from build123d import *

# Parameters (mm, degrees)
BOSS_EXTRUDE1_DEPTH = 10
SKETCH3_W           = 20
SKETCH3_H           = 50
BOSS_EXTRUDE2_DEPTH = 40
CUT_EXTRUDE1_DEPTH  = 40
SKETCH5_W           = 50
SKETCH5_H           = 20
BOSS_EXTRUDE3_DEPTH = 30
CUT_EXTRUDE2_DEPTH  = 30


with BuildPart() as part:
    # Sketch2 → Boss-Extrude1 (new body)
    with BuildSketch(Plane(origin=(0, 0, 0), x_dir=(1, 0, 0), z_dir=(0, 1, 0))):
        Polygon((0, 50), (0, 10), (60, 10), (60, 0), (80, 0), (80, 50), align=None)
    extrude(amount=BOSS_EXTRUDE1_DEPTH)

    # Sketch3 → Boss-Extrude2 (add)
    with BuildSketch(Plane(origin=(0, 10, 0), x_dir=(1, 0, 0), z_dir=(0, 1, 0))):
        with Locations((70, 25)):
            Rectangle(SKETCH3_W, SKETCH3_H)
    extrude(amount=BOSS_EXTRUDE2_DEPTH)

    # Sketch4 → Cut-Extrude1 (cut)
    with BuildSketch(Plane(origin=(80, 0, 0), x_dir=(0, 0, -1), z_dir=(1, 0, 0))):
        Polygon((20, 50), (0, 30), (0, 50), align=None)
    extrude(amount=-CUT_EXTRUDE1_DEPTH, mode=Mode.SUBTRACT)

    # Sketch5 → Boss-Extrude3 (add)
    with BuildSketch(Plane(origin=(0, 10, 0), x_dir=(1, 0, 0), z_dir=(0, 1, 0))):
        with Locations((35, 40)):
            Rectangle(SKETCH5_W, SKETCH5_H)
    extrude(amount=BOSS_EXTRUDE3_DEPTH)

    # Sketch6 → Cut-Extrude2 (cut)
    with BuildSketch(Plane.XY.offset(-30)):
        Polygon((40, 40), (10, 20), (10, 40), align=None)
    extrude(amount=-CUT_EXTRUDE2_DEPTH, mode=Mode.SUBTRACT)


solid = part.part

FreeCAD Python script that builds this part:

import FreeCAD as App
import Part
import Sketcher

doc = App.newDocument("Part")
params = doc.addObject("Spreadsheet::Sheet", "Params")
for row, (alias, value) in enumerate([
    ("sketch1_width", "60 mm"),
    ("sketch1_width2", "20 mm"),
    ("sketch1_height", "40 mm"),
    ("sketch1_height2", "10 mm"),
    ("pad1_length", "10 mm"),
    ("sketch2_width", "20 mm"),
    ("sketch2_height", "50 mm"),
    ("pad2_length", "40 mm"),
    ("sketch3_width", "20 mm"),
    ("pocket1_length", "40 mm"),
    ("sketch4_width", "50 mm"),
    ("sketch4_height", "20 mm"),
    ("pad3_length", "30 mm"),
    ("sketch5_width", "30 mm"),
    ("sketch5_height", "20 mm"),
    ("pocket2_length", "30 mm"),
], start=1):
    params.set(f"A{row}", alias)
    params.set(f"B{row}", "=" + value)
    params.setAlias(f"B{row}", alias)

body = doc.addObject("PartDesign::Body", "Body")

# Sketch on XZ plane
sketch1 = body.newObject("Sketcher::SketchObject", "Sketch")
sketch1.AttachmentSupport = (doc.getObject("XZ_Plane"), [""])
sketch1.MapMode = "FlatFace"
sketch1.addGeometry(Part.LineSegment(App.Vector(0, -50, 0), App.Vector(0, -10, 0)), False)
sketch1.addGeometry(Part.LineSegment(App.Vector(0, -10, 0), App.Vector(60, -10, 0)), False)
sketch1.addGeometry(Part.LineSegment(App.Vector(60, -10, 0), App.Vector(60, 0, 0)), False)
sketch1.addGeometry(Part.LineSegment(App.Vector(60, 0, 0), App.Vector(80, 0, 0)), False)
sketch1.addGeometry(Part.LineSegment(App.Vector(80, 0, 0), App.Vector(80, -50, 0)), False)
sketch1.addGeometry(Part.LineSegment(App.Vector(80, -50, 0), App.Vector(0, -50, 0)), False)
sketch1.addConstraint(Sketcher.Constraint("Coincident", 0, 2, 1, 1))
sketch1.addConstraint(Sketcher.Constraint("Coincident", 1, 2, 2, 1))
sketch1.addConstraint(Sketcher.Constraint("Coincident", 2, 2, 3, 1))
sketch1.addConstraint(Sketcher.Constraint("Coincident", 3, 2, 4, 1))
sketch1.addConstraint(Sketcher.Constraint("Coincident", 4, 2, 5, 1))
sketch1.addConstraint(Sketcher.Constraint("Coincident", 5, 2, 0, 1))
sketch1.addConstraint(Sketcher.Constraint("Vertical", 0))
sketch1.addConstraint(Sketcher.Constraint("Horizontal", 1))
sketch1.addConstraint(Sketcher.Constraint("Vertical", 2))
sketch1.addConstraint(Sketcher.Constraint("Horizontal", 3))
sketch1.addConstraint(Sketcher.Constraint("Vertical", 4))
sketch1.addConstraint(Sketcher.Constraint("Horizontal", 5))
sketch1.addConstraint(Sketcher.Constraint("PointOnObject", 0, 2, -2))
sketch1.addConstraint(Sketcher.Constraint("PointOnObject", 2, 2, -1))
sketch1.addConstraint(Sketcher.Constraint("DistanceX", 1, 1, 1, 2, 60.0))
sketch1.addConstraint(Sketcher.Constraint("DistanceX", 3, 1, 3, 2, 20.0))
sketch1.addConstraint(Sketcher.Constraint("DistanceY", 0, 1, 0, 2, 40.0))
sketch1.addConstraint(Sketcher.Constraint("DistanceY", 2, 1, 2, 2, 10.0))
sketch1.setExpression("Constraints[14]", "Params.sketch1_width")
sketch1.setExpression("Constraints[15]", "Params.sketch1_width2")
sketch1.setExpression("Constraints[16]", "Params.sketch1_height")
sketch1.setExpression("Constraints[17]", "Params.sketch1_height2")
pad1 = body.newObject("PartDesign::Pad", "Pad")
pad1.Profile = sketch1
pad1.setExpression("Length", "Params.pad1_length")
pad1.Reversed = True

# Sketch on XZ plane
sketch2 = body.newObject("Sketcher::SketchObject", "Sketch001")
sketch2.AttachmentSupport = (doc.getObject("XZ_Plane"), [""])
sketch2.MapMode = "FlatFace"
sketch2.AttachmentOffset = App.Placement(App.Vector(0, 0, -10), App.Rotation())
sketch2.addGeometry(Part.LineSegment(App.Vector(60, -50, 0), App.Vector(60, 0, 0)), False)
sketch2.addGeometry(Part.LineSegment(App.Vector(60, 0, 0), App.Vector(80, 0, 0)), False)
sketch2.addGeometry(Part.LineSegment(App.Vector(80, 0, 0), App.Vector(80, -50, 0)), False)
sketch2.addGeometry(Part.LineSegment(App.Vector(80, -50, 0), App.Vector(60, -50, 0)), False)
sketch2.addConstraint(Sketcher.Constraint("Coincident", 0, 2, 1, 1))
sketch2.addConstraint(Sketcher.Constraint("Coincident", 1, 2, 2, 1))
sketch2.addConstraint(Sketcher.Constraint("Coincident", 2, 2, 3, 1))
sketch2.addConstraint(Sketcher.Constraint("Coincident", 3, 2, 0, 1))
sketch2.addConstraint(Sketcher.Constraint("Vertical", 0))
sketch2.addConstraint(Sketcher.Constraint("Horizontal", 1))
sketch2.addConstraint(Sketcher.Constraint("Vertical", 2))
sketch2.addConstraint(Sketcher.Constraint("Horizontal", 3))
sketch2.addConstraint(Sketcher.Constraint("PointOnObject", 0, 2, -1))
sketch2.addConstraint(Sketcher.Constraint("DistanceX", 1, 1, 1, 2, 20.0))
sketch2.addConstraint(Sketcher.Constraint("DistanceY", 0, 1, 0, 2, 50.0))
sketch2.addConstraint(Sketcher.Constraint("DistanceX", -1, 1, 0, 2, 60.0))
sketch2.setExpression("Constraints[9]", "Params.sketch2_width")
sketch2.setExpression("Constraints[10]", "Params.sketch2_height")
pad2 = body.newObject("PartDesign::Pad", "Pad001")
pad2.Profile = sketch2
pad2.setExpression("Length", "Params.pad2_length")
pad2.Reversed = True

# Sketch on YZ plane
sketch3 = body.newObject("Sketcher::SketchObject", "Sketch002")
sketch3.AttachmentSupport = (doc.getObject("YZ_Plane"), [""])
sketch3.MapMode = "FlatFace"
sketch3.AttachmentOffset = App.Placement(App.Vector(0, 0, 80), App.Rotation())
sketch3.addGeometry(Part.LineSegment(App.Vector(30, 0, 0), App.Vector(50, -20, 0)), False)
sketch3.addGeometry(Part.LineSegment(App.Vector(50, -20, 0), App.Vector(50, 0, 0)), False)
sketch3.addGeometry(Part.LineSegment(App.Vector(50, 0, 0), App.Vector(30, 0, 0)), False)
sketch3.addConstraint(Sketcher.Constraint("Coincident", 0, 2, 1, 1))
sketch3.addConstraint(Sketcher.Constraint("Coincident", 1, 2, 2, 1))
sketch3.addConstraint(Sketcher.Constraint("Coincident", 2, 2, 0, 1))
sketch3.addConstraint(Sketcher.Constraint("Vertical", 1))
sketch3.addConstraint(Sketcher.Constraint("Horizontal", 2))
sketch3.addConstraint(Sketcher.Constraint("PointOnObject", 1, 2, -1))
sketch3.addConstraint(Sketcher.Constraint("Equal", 2, 1))
sketch3.addConstraint(Sketcher.Constraint("DistanceX", 2, 2, 2, 1, 20.0))
sketch3.addConstraint(Sketcher.Constraint("DistanceX", -1, 1, 0, 2, 50.0))
sketch3.setExpression("Constraints[7]", "Params.sketch3_width")
pocket1 = body.newObject("PartDesign::Pocket", "Pocket")
pocket1.Profile = sketch3
pocket1.setExpression("Length", "Params.pocket1_length")

# Sketch on XZ plane
sketch4 = body.newObject("Sketcher::SketchObject", "Sketch003")
sketch4.AttachmentSupport = (doc.getObject("XZ_Plane"), [""])
sketch4.MapMode = "FlatFace"
sketch4.AttachmentOffset = App.Placement(App.Vector(0, 0, -10), App.Rotation())
sketch4.addGeometry(Part.LineSegment(App.Vector(10, -50, 0), App.Vector(10, -30, 0)), False)
sketch4.addGeometry(Part.LineSegment(App.Vector(10, -30, 0), App.Vector(60, -30, 0)), False)
sketch4.addGeometry(Part.LineSegment(App.Vector(60, -30, 0), App.Vector(60, -50, 0)), False)
sketch4.addGeometry(Part.LineSegment(App.Vector(60, -50, 0), App.Vector(10, -50, 0)), False)
sketch4.addConstraint(Sketcher.Constraint("Coincident", 0, 2, 1, 1))
sketch4.addConstraint(Sketcher.Constraint("Coincident", 1, 2, 2, 1))
sketch4.addConstraint(Sketcher.Constraint("Coincident", 2, 2, 3, 1))
sketch4.addConstraint(Sketcher.Constraint("Coincident", 3, 2, 0, 1))
sketch4.addConstraint(Sketcher.Constraint("Vertical", 0))
sketch4.addConstraint(Sketcher.Constraint("Horizontal", 1))
sketch4.addConstraint(Sketcher.Constraint("Vertical", 2))
sketch4.addConstraint(Sketcher.Constraint("Horizontal", 3))
sketch4.addConstraint(Sketcher.Constraint("DistanceX", 1, 1, 1, 2, 50.0))
sketch4.addConstraint(Sketcher.Constraint("DistanceY", 0, 1, 0, 2, 20.0))
sketch4.addConstraint(Sketcher.Constraint("DistanceX", -1, 1, 0, 2, 10.0))
sketch4.addConstraint(Sketcher.Constraint("DistanceY", 0, 2, -1, 1, 30.0))
sketch4.setExpression("Constraints[8]", "Params.sketch4_width")
sketch4.setExpression("Constraints[9]", "Params.sketch4_height")
pad3 = body.newObject("PartDesign::Pad", "Pad002")
pad3.Profile = sketch4
pad3.setExpression("Length", "Params.pad3_length")
pad3.Reversed = True

# Sketch on XY plane
sketch5 = body.newObject("Sketcher::SketchObject", "Sketch004")
sketch5.AttachmentSupport = (doc.getObject("XY_Plane"), [""])
sketch5.MapMode = "FlatFace"
sketch5.AttachmentOffset = App.Placement(App.Vector(0, 0, -30), App.Rotation())
sketch5.addGeometry(Part.LineSegment(App.Vector(10, 20, 0), App.Vector(40, 40, 0)), False)
sketch5.addGeometry(Part.LineSegment(App.Vector(40, 40, 0), App.Vector(10, 40, 0)), False)
sketch5.addGeometry(Part.LineSegment(App.Vector(10, 40, 0), App.Vector(10, 20, 0)), False)
sketch5.addConstraint(Sketcher.Constraint("Coincident", 0, 2, 1, 1))
sketch5.addConstraint(Sketcher.Constraint("Coincident", 1, 2, 2, 1))
sketch5.addConstraint(Sketcher.Constraint("Coincident", 2, 2, 0, 1))
sketch5.addConstraint(Sketcher.Constraint("Horizontal", 1))
sketch5.addConstraint(Sketcher.Constraint("Vertical", 2))
sketch5.addConstraint(Sketcher.Constraint("DistanceX", 1, 2, 1, 1, 30.0))
sketch5.addConstraint(Sketcher.Constraint("DistanceY", 2, 2, 2, 1, 20.0))
sketch5.addConstraint(Sketcher.Constraint("DistanceX", -1, 1, 0, 2, 40.0))
sketch5.addConstraint(Sketcher.Constraint("DistanceY", -1, 1, 0, 2, 40.0))
sketch5.setExpression("Constraints[5]", "Params.sketch5_width")
sketch5.setExpression("Constraints[6]", "Params.sketch5_height")
pocket2 = body.newObject("PartDesign::Pocket", "Pocket001")
pocket2.Profile = sketch5
pocket2.setExpression("Length", "Params.pocket2_length")

doc.recompute()
